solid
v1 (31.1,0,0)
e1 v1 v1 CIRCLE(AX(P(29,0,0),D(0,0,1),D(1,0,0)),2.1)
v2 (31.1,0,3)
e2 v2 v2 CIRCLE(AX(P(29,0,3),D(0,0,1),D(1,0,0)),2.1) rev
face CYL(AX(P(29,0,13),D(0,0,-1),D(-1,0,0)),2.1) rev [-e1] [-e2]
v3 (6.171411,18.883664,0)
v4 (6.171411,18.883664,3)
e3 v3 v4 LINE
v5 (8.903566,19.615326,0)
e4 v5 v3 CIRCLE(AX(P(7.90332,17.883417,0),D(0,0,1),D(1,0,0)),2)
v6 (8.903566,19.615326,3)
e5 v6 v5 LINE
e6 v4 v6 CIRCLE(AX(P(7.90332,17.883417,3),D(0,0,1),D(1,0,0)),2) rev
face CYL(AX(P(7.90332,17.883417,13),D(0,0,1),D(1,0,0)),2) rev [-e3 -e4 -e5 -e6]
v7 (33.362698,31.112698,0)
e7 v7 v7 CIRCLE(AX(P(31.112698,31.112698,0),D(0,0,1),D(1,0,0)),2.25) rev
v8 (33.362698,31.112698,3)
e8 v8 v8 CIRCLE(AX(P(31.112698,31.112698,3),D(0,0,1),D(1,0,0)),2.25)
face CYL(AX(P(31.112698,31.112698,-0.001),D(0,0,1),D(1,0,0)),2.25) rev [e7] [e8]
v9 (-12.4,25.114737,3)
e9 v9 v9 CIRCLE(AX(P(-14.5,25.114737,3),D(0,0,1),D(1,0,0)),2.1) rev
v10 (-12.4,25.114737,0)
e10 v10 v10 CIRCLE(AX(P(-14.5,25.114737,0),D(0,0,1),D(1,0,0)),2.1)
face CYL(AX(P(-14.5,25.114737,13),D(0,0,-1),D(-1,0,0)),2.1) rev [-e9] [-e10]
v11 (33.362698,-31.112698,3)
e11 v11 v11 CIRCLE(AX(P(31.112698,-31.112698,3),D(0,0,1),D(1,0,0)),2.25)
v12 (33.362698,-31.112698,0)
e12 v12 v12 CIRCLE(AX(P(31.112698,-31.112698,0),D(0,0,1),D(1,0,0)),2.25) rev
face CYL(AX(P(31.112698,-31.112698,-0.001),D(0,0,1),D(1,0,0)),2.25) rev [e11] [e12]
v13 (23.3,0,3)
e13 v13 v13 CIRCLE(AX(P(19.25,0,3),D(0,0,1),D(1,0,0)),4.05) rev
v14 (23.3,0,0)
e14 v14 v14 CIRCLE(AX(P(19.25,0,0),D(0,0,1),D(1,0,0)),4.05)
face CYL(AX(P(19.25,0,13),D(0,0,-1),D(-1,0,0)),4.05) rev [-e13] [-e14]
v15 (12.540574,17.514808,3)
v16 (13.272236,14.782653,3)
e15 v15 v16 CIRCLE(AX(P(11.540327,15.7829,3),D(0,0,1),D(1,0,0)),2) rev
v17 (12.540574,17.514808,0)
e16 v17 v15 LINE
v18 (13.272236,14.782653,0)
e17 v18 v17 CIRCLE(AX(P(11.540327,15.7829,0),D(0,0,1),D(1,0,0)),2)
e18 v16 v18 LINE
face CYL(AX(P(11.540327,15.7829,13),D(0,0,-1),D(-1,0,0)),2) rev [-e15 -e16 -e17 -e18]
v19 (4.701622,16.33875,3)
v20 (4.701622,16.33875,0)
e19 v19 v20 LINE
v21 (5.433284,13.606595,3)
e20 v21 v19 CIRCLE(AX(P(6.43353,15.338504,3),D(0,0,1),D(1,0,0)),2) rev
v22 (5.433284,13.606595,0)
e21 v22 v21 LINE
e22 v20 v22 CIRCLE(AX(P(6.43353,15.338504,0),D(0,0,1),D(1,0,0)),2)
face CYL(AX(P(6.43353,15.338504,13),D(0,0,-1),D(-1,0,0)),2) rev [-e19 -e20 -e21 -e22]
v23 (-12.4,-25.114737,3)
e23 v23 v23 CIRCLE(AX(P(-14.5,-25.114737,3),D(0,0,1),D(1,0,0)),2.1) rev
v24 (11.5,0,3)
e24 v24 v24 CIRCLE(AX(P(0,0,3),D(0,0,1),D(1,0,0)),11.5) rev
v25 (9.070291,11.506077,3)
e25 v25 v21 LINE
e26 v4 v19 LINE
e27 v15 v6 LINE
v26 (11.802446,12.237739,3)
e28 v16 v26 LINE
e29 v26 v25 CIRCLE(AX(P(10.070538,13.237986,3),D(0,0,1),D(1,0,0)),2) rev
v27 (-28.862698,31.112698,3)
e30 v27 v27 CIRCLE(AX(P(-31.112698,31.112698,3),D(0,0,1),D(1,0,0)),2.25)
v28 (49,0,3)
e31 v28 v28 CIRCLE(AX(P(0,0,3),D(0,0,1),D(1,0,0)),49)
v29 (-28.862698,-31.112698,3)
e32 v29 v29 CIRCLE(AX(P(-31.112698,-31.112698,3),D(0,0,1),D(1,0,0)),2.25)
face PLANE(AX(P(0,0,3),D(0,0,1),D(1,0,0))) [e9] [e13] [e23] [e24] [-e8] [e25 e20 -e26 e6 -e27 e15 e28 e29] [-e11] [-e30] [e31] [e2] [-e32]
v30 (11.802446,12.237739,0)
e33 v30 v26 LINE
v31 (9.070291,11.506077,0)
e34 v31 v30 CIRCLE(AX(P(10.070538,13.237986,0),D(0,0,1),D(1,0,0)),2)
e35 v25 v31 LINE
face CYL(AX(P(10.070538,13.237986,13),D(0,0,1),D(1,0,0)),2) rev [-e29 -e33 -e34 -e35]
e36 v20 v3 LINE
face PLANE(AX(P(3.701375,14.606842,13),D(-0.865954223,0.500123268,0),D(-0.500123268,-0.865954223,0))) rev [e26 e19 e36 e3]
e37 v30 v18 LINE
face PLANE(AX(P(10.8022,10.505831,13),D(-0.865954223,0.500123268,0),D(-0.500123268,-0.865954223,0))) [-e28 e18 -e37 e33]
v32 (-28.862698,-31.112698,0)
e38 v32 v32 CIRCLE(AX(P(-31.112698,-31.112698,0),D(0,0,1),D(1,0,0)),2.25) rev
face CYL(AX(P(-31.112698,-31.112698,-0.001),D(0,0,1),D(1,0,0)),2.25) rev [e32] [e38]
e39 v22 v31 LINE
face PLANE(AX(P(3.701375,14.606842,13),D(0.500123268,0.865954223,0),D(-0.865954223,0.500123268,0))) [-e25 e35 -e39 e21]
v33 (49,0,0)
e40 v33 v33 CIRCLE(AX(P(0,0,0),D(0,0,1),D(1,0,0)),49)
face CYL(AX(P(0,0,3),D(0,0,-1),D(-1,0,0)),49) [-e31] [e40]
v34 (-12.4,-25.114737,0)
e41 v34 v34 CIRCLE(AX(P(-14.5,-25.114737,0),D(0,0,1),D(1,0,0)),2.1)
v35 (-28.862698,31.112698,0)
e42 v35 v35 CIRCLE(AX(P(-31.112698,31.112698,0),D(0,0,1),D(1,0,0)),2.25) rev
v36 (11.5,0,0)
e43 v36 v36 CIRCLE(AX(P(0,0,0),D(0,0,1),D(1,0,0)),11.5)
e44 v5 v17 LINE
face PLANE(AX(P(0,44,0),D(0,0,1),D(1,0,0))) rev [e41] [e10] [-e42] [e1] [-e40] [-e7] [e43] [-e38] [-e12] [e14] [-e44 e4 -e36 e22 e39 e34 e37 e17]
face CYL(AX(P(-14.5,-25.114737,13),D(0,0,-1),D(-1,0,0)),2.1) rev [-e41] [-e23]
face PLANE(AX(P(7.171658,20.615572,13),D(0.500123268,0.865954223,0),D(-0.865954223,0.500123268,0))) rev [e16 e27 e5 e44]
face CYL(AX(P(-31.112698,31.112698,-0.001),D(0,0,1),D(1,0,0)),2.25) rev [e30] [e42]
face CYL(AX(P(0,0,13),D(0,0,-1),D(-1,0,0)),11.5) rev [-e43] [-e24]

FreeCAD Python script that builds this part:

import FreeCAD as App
import Part
import Sketcher
from FreeCAD import Vector


def edges_at(feature, points):
    """Names of the edges that pass closest to the given points."""
    edges = feature.Shape.Edges
    near = lambda p: min(range(len(edges)), key=lambda i: edges[i].distToShape(Part.Vertex(*p))[0])
    return sorted({f"Edge{near(p) + 1}" for p in points})


def add_polygon(sketch, points):
    """Adds a closed chain of lines whose ends are joined by coincident constraints."""
    first, n = sketch.GeometryCount, len(points)
    for a, b in zip(points, points[1:] + points[:1]):
        sketch.addGeometry(Part.LineSegment(App.Vector(*a, 0), App.Vector(*b, 0)), False)
    for i in range(n):
        sketch.addConstraint(Sketcher.Constraint("Coincident", first + i, 2, first + (i + 1) % n, 1))

doc = App.newDocument("Part")
body = doc.addObject("PartDesign::Body", "Body")

# Sketch on XY plane
sketch1 = body.newObject("Sketcher::SketchObject", "Sketch")
sketch1.AttachmentSupport = (doc.getObject("XY_Plane"), [""])
sketch1.MapMode = "FlatFace"
sketch1.addGeometry(Part.Circle(Vector(0, 44, 0), Vector(0, 0, 1), 1.6), False)
sketch1.addConstraint([
    Sketcher.Constraint("PointOnObject", 0, 3, -2),
    Sketcher.Constraint("Diameter", 0, 3.2),
    Sketcher.Constraint("DistanceY", -1, 1, 0, 3, 44.0),
])
pad1 = body.newObject("PartDesign::Pad", "Pad")
pad1.Profile = sketch1
pad1.Length = 13
body2 = doc.addObject("PartDesign::Body", "Body001")

# Sketch on XY plane
sketch2 = body2.newObject("Sketcher::SketchObject", "Sketch001")
sketch2.AttachmentSupport = (doc.getObject("XY_Plane001"), [""])
sketch2.MapMode = "FlatFace"
sketch2.addGeometry(Part.Circle(Vector(44, 0, 0), Vector(0, 0, 1), 1.6), False)
sketch2.addConstraint([
    Sketcher.Constraint("PointOnObject", 0, 3, -1),
    Sketcher.Constraint("Diameter", 0, 3.2),
    Sketcher.Constraint("DistanceX", -1, 1, 0, 3, 44.0),
])
pad2 = body2.newObject("PartDesign::Pad", "Pad001")
pad2.Profile = sketch2
pad2.Length = 13
body3 = doc.addObject("PartDesign::Body", "Body002")

# Sketch on XY plane
sketch3 = body3.newObject("Sketcher::SketchObject", "Sketch002")
sketch3.AttachmentSupport = (doc.getObject("XY_Plane002"), [""])
sketch3.MapMode = "FlatFace"
sketch3.addGeometry(Part.Circle(Vector(0, -44, 0), Vector(0, 0, 1), 1.6), False)
sketch3.addConstraint([
    Sketcher.Constraint("PointOnObject", 0, 3, -2),
    Sketcher.Constraint("Diameter", 0, 3.2),
    Sketcher.Constraint("DistanceY", 0, 3, -1, 1, 44.0),
])
pad3 = body3.newObject("PartDesign::Pad", "Pad002")
pad3.Profile = sketch3
pad3.Length = 13
body4 = doc.addObject("PartDesign::Body", "Body003")

# Sketch on XY plane
sketch4 = body4.newObject("Sketcher::SketchObject", "Sketch003")
sketch4.AttachmentSupport = (doc.getObject("XY_Plane003"), [""])
sketch4.MapMode = "FlatFace"
sketch4.addGeometry(Part.Circle(Vector(-44, 0, 0), Vector(0, 0, 1), 1.6), False)
sketch4.addConstraint([
    Sketcher.Constraint("PointOnObject", 0, 3, -1),
    Sketcher.Constraint("Diameter", 0, 3.2),
    Sketcher.Constraint("DistanceX", 0, 3, -1, 1, 44.0),
])
pad4 = body4.newObject("PartDesign::Pad", "Pad003")
pad4.Profile = sketch4
pad4.Length = 13
body5 = doc.addObject("PartDesign::Body", "Body004")

# Sketch on XY plane
sketch5 = body5.newObject("Sketcher::SketchObject", "Sketch004")
sketch5.AttachmentSupport = (doc.getObject("XY_Plane004"), [""])
sketch5.MapMode = "FlatFace"
sketch5.addGeometry(Part.Circle(Vector(29, 0, 0), Vector(0, 0, 1), 2.1), False)
sketch5.addConstraint([
    Sketcher.Constraint("PointOnObject", 0, 3, -1),
    Sketcher.Constraint("Diameter", 0, 4.2),
    Sketcher.Constraint("DistanceX", -1, 1, 0, 3, 29.0),
])
pad5 = body5.newObject("PartDesign::Pad", "Pad004")
pad5.Profile = sketch5
pad5.Length = 13
body6 = doc.addObject("PartDesign::Body", "Body005")

# Sketch on XY plane
sketch6 = body6.newObject("Sketcher::SketchObject", "Sketch005")
sketch6.AttachmentSupport = (doc.getObject("XY_Plane005"), [""])
sketch6.MapMode = "FlatFace"
sketch6.addGeometry(Part.Circle(Vector(-14.5, 25.1, 0), Vector(0, 0, 1), 2.1), False)
sketch6.addConstraint([
    Sketcher.Constraint("Diameter", 0, 4.2),
    Sketcher.Constraint("DistanceX", 0, 3, -1, 1, 14.5),
    Sketcher.Constraint("DistanceY", -1, 1, 0, 3, 25.114737),
])
pad6 = body6.newObject("PartDesign::Pad", "Pad005")
pad6.Profile = sketch6
pad6.Length = 13
body7 = doc.addObject("PartDesign::Body", "Body006")

# Sketch on XY plane
sketch7 = body7.newObject("Sketcher::SketchObject", "Sketch006")
sketch7.AttachmentSupport = (doc.getObject("XY_Plane006"), [""])
sketch7.MapMode = "FlatFace"
sketch7.addGeometry(Part.Circle(Vector(-14.5, -25.1, 0), Vector(0, 0, 1), 2.1), False)
sketch7.addConstraint([
    Sketcher.Constraint("Diameter", 0, 4.2),
    Sketcher.Constraint("DistanceX", 0, 3, -1, 1, 14.5),
    Sketcher.Constraint("DistanceY", 0, 3, -1, 1, 25.114737),
])
pad7 = body7.newObject("PartDesign::Pad", "Pad006")
pad7.Profile = sketch7
pad7.Length = 13
body.AllowCompound = True
doc.recompute()

boolean = body.newObject("PartDesign::Boolean", "Boolean")
boolean.Type = "Fuse"
boolean.addObjects([body2])
doc.recompute()

boolean2 = body.newObject("PartDesign::Boolean", "Boolean001")
boolean2.Type = "Fuse"
boolean2.addObjects([body3])
doc.recompute()

boolean3 = body.newObject("PartDesign::Boolean", "Boolean002")
boolean3.Type = "Fuse"
boolean3.addObjects([body4])
doc.recompute()

boolean4 = body.newObject("PartDesign::Boolean", "Boolean003")
boolean4.Type = "Fuse"
boolean4.addObjects([body5])
doc.recompute()

boolean5 = body.newObject("PartDesign::Boolean", "Boolean004")
boolean5.Type = "Fuse"
boolean5.addObjects([body6])
doc.recompute()

boolean6 = body.newObject("PartDesign::Boolean", "Boolean005")
boolean6.Type = "Fuse"
boolean6.addObjects([body7])

# Sketch on XY plane
sketch8 = body.newObject("Sketcher::SketchObject", "Sketch007")
sketch8.AttachmentSupport = (doc.getObject("XY_Plane"), [""])
sketch8.MapMode = "FlatFace"
sketch8.addGeometry(Part.Circle(Vector(0, 0, 0), Vector(0, 0, 1), 49), False)
sketch8.addConstraint([
    Sketcher.Constraint("Coincident", 0, 3, -1, 1),
    Sketcher.Constraint("Diameter", 0, 98.0),
])
pad8 = body.newObject("PartDesign::Pad", "Pad007")
pad8.Profile = sketch8
pad8.Length = 3

# Sketch on XY plane
sketch9 = body.newObject("Sketcher::SketchObject", "Sketch008")
sketch9.AttachmentSupport = (doc.getObject("XY_Plane"), [""])
sketch9.MapMode = "FlatFace"
sketch9.addGeometry([
    Part.Circle(Vector(0, 44, 0), Vector(0, 0, 1), 2.1),  # 0
    Part.Circle(Vector(44, 0, 0), Vector(0, 0, 1), 2.1),  # 1
    Part.Circle(Vector(0, -44, 0), Vector(0, 0, 1), 2.1),  # 2
    Part.Circle(Vector(-44, 0, 0), Vector(0, 0, 1), 2.1),  # 3
    Part.Circle(Vector(-14.5, 25.1, 0), Vector(0, 0, 1), 2.1),  # 4
    Part.Circle(Vector(-14.5, -25.1, 0), Vector(0, 0, 1), 2.1),  # 5
    Part.Circle(Vector(29, 0, 0), Vector(0, 0, 1), 2.1),  # 6
], False)
sketch9.addConstraint([
    Sketcher.Constraint("Equal", 0, 1),
    Sketcher.Constraint("Equal", 1, 2),
    Sketcher.Constraint("Equal", 2, 3),
    Sketcher.Constraint("Equal", 3, 4),
    Sketcher.Constraint("Equal", 4, 5),
    Sketcher.Constraint("Equal", 5, 6),
    Sketcher.Constraint("Symmetric", 0, 3, 2, 3, -1, 1),
    Sketcher.Constraint("Symmetric", 1, 3, 3, 3, -1, 1),
    Sketcher.Constraint("Symmetric", 4, 3, 5, 3, -1),
    Sketcher.Constraint("PointOnObject", 0, 3, -2),
    Sketcher.Constraint("PointOnObject", 1, 3, -1),
    Sketcher.Constraint("PointOnObject", 6, 3, -1),
    Sketcher.Constraint("Diameter", 0, 4.2),
    Sketcher.Constraint("DistanceY", -1, 1, 0, 3, 44.0),
    Sketcher.Constraint("DistanceX", -1, 1, 1, 3, 44.0),
    Sketcher.Constraint("DistanceX", -1, 1, 6, 3, 29.0),
    Sketcher.Constraint("DistanceX", 4, 3, -1, 1, 14.5),
    Sketcher.Constraint("DistanceY", -1, 1, 4, 3, 25.114737),
])
pocket1 = body.newObject("PartDesign::Pocket", "Pocket")
pocket1.Profile = sketch9
pocket1.Length = 13
pocket1.Reversed = True

# Sketch on XY plane
sketch10 = body.newObject("Sketcher::SketchObject", "Sketch009")
sketch10.AttachmentSupport = (doc.getObject("XY_Plane"), [""])
sketch10.MapMode = "FlatFace"
sketch10.addGeometry(Part.Circle(Vector(0, 0, 0), Vector(0, 0, 1), 9), False)
sketch10.addConstraint([
    Sketcher.Constraint("Coincident", 0, 3, -1, 1),
    Sketcher.Constraint("Diameter", 0, 17.2),
])
pocket2 = body.newObject("PartDesign::Pocket", "Pocket001")
pocket2.Profile = sketch10
pocket2.Length = 13
pocket2.Reversed = True

# Sketch on XY plane
sketch11 = body.newObject("Sketcher::SketchObject", "Sketch010")
sketch11.AttachmentSupport = (doc.getObject("XY_Plane"), [""])
sketch11.MapMode = "FlatFace"
sketch11.addGeometry(Part.Circle(Vector(19.2, 0, 0), Vector(0, 0, 1), 4), False)
sketch11.addConstraint([
    Sketcher.Constraint("PointOnObject", 0, 3, -1),
    Sketcher.Constraint("Diameter", 0, 8.1),
    Sketcher.Constraint("DistanceX", -1, 1, 0, 3, 19.25),
])
pocket3 = body.newObject("PartDesign::Pocket", "Pocket002")
pocket3.Profile = sketch11
pocket3.Length = 13
pocket3.Reversed = True

# Sketch on XY plane
sketch12 = body.newObject("Sketcher::SketchObject", "Sketch011")
sketch12.AttachmentSupport = (doc.getObject("XY_Plane"), [""])
sketch12.MapMode = "FlatFace"
add_polygon(sketch12, [(11, 11), (14, 17), (7, 21), (4, 15)])  # lines 0-3
sketch12.addConstraint([
    Sketcher.Constraint("Perpendicular", 0, 1),
    Sketcher.Constraint("Perpendicular", 1, 2),
    Sketcher.Constraint("Perpendicular", 2, 3),
    Sketcher.Constraint("Distance", 1, 8.2),
    Sketcher.Constraint("DistanceX", -1, 1, 3, 2, 10.8022),
    Sketcher.Constraint("DistanceY", -1, 1, 0, 2, 16.514561),
    Sketcher.Constraint("DistanceY", -1, 1, 2, 2, 14.606842),
    Sketcher.Constraint("DistanceY", -1, 1, 3, 2, 10.505831),
])
pocket4 = body.newObject("PartDesign::Pocket", "Pocket003")
pocket4.Profile = sketch12
pocket4.Length = 13
pocket4.Reversed = True

# Sketch on XY plane
sketch13 = body.newObject("Sketcher::SketchObject", "Sketch012")
sketch13.AttachmentSupport = (doc.getObject("XY_Plane"), [""])
sketch13.MapMode = "FlatFace"
sketch13.addGeometry(Part.Circle(Vector(0, 0, 0), Vector(0, 0, 1), 12), False)
sketch13.addConstraint([
    Sketcher.Constraint("Coincident", 0, 3, -1, 1),
    Sketcher.Constraint("Diameter", 0, 23.0),
])
pocket5 = body.newObject("PartDesign::Pocket", "Pocket004")
pocket5.Profile = sketch13
pocket5.Length = 13
pocket5.Reversed = True
doc.recompute()

fillet = body.newObject("PartDesign::Fillet", "Fillet")
fillet.Base = (pocket5, edges_at(pocket5, [
    (7.172, 20.616, 1.5),
    (3.701, 14.607, 1.5),
    (10.802, 10.506, 1.5),
    (14.272, 16.515, 1.5),
]))
fillet.Radius = 2

# Sketch on XY plane
sketch14 = body.newObject("Sketcher::SketchObject", "Sketch013")
sketch14.AttachmentSupport = (doc.getObject("XY_Plane"), [""])
sketch14.MapMode = "FlatFace"
sketch14.AttachmentOffset = App.Placement(Vector(0, 0, 3), App.Rotation())
sketch14.addGeometry(Part.Circle(Vector(-31.1, 31.1, 0), Vector(0, 0, 1), 2.2), False)
sketch14.addConstraint([
    Sketcher.Constraint("Diameter", 0, 4.5),
    Sketcher.Constraint("DistanceX", 0, 3, -1, 1, 31.112698),
    Sketcher.Constraint("DistanceY", -1, 1, 0, 3, 31.112698),
])
pocket6 = body.newObject("PartDesign::Pocket", "Pocket005")
pocket6.Profile = sketch14
pocket6.Type = "UpToFirst"

# Sketch on XY plane
sketch15 = body.newObject("Sketcher::SketchObject", "Sketch014")
sketch15.AttachmentSupport = (doc.getObject("XY_Plane"), [""])
sketch15.MapMode = "FlatFace"
sketch15.AttachmentOffset = App.Placement(Vector(0, 0, 3), App.Rotation())
sketch15.addGeometry(Part.Circle(Vector(31.1, 31.1, 0), Vector(0, 0, 1), 2.2), False)
sketch15.addConstraint([
    Sketcher.Constraint("Diameter", 0, 4.5),
    Sketcher.Constraint("DistanceX", -1, 1, 0, 3, 31.112698),
    Sketcher.Constraint("DistanceY", -1, 1, 0, 3, 31.112698),
])
pocket7 = body.newObject("PartDesign::Pocket", "Pocket006")
pocket7.Profile = sketch15
pocket7.Type = "UpToFirst"

# Sketch on XY plane
sketch16 = body.newObject("Sketcher::SketchObject", "Sketch015")
sketch16.AttachmentSupport = (doc.getObject("XY_Plane"), [""])
sketch16.MapMode = "FlatFace"
sketch16.AttachmentOffset = App.Placement(Vector(0, 0, 3), App.Rotation())
sketch16.addGeometry(Part.Circle(Vector(31.1, -31.1, 0), Vector(0, 0, 1), 2.2), False)
sketch16.addConstraint([
    Sketcher.Constraint("Diameter", 0, 4.5),
    Sketcher.Constraint("DistanceX", -1, 1, 0, 3, 31.112698),
    Sketcher.Constraint("DistanceY", 0, 3, -1, 1, 31.112698),
])
pocket8 = body.newObject("PartDesign::Pocket", "Pocket007")
pocket8.Profile = sketch16
pocket8.Type = "UpToFirst"

# Sketch on XY plane
sketch17 = body.newObject("Sketcher::SketchObject", "Sketch016")
sketch17.AttachmentSupport = (doc.getObject("XY_Plane"), [""])
sketch17.MapMode = "FlatFace"
sketch17.AttachmentOffset = App.Placement(Vector(0, 0, 3), App.Rotation())
sketch17.addGeometry(Part.Circle(Vector(-31.1, -31.1, 0), Vector(0, 0, 1), 2.2), False)
sketch17.addConstraint([
    Sketcher.Constraint("Diameter", 0, 4.5),
    Sketcher.Constraint("DistanceX", 0, 3, -1, 1, 31.112698),
    Sketcher.Constraint("DistanceY", 0, 3, -1, 1, 31.112698),
])
pocket9 = body.newObject("PartDesign::Pocket", "Pocket008")
pocket9.Profile = sketch17
pocket9.Type = "UpToFirst"

# Sketch on XY plane
sketch18 = body.newObject("Sketcher::SketchObject", "Sketch017")
sketch18.AttachmentSupport = (doc.getObject("XY_Plane"), [""])
sketch18.MapMode = "FlatFace"
sketch18.addGeometry([
    Part.Circle(Vector(-44, 0, 0), Vector(0, 0, 1), 2.1),
    Part.Circle(Vector(0, -44, 0), Vector(0, 0, 1), 2.1),
    Part.Circle(Vector(44, 0, 0), Vector(0, 0, 1), 2.1),
    Part.Circle(Vector(0, 44, 0), Vector(0, 0, 1), 2.1),
], False)
sketch18.addConstraint([
    Sketcher.Constraint("Equal", 0, 1),
    Sketcher.Constraint("Equal", 1, 2),
    Sketcher.Constraint("Equal", 2, 3),
    Sketcher.Constraint("Symmetric", 0, 3, 2, 3, -1, 1),
    Sketcher.Constraint("Symmetric", 1, 3, 3, 3, -1, 1),
    Sketcher.Constraint("PointOnObject", 0, 3, -1),
    Sketcher.Constraint("PointOnObject", 1, 3, -2),
    Sketcher.Constraint("Diameter", 0, 4.2),
    Sketcher.Constraint("DistanceX", 0, 3, -1, 1, 44.0),
    Sketcher.Constraint("DistanceY", 1, 3, -1, 1, 44.0),
])
pad9 = body.newObject("PartDesign::Pad", "Pad008")
pad9.Profile = sketch18
pad9.Length = 3

doc.recompute()
